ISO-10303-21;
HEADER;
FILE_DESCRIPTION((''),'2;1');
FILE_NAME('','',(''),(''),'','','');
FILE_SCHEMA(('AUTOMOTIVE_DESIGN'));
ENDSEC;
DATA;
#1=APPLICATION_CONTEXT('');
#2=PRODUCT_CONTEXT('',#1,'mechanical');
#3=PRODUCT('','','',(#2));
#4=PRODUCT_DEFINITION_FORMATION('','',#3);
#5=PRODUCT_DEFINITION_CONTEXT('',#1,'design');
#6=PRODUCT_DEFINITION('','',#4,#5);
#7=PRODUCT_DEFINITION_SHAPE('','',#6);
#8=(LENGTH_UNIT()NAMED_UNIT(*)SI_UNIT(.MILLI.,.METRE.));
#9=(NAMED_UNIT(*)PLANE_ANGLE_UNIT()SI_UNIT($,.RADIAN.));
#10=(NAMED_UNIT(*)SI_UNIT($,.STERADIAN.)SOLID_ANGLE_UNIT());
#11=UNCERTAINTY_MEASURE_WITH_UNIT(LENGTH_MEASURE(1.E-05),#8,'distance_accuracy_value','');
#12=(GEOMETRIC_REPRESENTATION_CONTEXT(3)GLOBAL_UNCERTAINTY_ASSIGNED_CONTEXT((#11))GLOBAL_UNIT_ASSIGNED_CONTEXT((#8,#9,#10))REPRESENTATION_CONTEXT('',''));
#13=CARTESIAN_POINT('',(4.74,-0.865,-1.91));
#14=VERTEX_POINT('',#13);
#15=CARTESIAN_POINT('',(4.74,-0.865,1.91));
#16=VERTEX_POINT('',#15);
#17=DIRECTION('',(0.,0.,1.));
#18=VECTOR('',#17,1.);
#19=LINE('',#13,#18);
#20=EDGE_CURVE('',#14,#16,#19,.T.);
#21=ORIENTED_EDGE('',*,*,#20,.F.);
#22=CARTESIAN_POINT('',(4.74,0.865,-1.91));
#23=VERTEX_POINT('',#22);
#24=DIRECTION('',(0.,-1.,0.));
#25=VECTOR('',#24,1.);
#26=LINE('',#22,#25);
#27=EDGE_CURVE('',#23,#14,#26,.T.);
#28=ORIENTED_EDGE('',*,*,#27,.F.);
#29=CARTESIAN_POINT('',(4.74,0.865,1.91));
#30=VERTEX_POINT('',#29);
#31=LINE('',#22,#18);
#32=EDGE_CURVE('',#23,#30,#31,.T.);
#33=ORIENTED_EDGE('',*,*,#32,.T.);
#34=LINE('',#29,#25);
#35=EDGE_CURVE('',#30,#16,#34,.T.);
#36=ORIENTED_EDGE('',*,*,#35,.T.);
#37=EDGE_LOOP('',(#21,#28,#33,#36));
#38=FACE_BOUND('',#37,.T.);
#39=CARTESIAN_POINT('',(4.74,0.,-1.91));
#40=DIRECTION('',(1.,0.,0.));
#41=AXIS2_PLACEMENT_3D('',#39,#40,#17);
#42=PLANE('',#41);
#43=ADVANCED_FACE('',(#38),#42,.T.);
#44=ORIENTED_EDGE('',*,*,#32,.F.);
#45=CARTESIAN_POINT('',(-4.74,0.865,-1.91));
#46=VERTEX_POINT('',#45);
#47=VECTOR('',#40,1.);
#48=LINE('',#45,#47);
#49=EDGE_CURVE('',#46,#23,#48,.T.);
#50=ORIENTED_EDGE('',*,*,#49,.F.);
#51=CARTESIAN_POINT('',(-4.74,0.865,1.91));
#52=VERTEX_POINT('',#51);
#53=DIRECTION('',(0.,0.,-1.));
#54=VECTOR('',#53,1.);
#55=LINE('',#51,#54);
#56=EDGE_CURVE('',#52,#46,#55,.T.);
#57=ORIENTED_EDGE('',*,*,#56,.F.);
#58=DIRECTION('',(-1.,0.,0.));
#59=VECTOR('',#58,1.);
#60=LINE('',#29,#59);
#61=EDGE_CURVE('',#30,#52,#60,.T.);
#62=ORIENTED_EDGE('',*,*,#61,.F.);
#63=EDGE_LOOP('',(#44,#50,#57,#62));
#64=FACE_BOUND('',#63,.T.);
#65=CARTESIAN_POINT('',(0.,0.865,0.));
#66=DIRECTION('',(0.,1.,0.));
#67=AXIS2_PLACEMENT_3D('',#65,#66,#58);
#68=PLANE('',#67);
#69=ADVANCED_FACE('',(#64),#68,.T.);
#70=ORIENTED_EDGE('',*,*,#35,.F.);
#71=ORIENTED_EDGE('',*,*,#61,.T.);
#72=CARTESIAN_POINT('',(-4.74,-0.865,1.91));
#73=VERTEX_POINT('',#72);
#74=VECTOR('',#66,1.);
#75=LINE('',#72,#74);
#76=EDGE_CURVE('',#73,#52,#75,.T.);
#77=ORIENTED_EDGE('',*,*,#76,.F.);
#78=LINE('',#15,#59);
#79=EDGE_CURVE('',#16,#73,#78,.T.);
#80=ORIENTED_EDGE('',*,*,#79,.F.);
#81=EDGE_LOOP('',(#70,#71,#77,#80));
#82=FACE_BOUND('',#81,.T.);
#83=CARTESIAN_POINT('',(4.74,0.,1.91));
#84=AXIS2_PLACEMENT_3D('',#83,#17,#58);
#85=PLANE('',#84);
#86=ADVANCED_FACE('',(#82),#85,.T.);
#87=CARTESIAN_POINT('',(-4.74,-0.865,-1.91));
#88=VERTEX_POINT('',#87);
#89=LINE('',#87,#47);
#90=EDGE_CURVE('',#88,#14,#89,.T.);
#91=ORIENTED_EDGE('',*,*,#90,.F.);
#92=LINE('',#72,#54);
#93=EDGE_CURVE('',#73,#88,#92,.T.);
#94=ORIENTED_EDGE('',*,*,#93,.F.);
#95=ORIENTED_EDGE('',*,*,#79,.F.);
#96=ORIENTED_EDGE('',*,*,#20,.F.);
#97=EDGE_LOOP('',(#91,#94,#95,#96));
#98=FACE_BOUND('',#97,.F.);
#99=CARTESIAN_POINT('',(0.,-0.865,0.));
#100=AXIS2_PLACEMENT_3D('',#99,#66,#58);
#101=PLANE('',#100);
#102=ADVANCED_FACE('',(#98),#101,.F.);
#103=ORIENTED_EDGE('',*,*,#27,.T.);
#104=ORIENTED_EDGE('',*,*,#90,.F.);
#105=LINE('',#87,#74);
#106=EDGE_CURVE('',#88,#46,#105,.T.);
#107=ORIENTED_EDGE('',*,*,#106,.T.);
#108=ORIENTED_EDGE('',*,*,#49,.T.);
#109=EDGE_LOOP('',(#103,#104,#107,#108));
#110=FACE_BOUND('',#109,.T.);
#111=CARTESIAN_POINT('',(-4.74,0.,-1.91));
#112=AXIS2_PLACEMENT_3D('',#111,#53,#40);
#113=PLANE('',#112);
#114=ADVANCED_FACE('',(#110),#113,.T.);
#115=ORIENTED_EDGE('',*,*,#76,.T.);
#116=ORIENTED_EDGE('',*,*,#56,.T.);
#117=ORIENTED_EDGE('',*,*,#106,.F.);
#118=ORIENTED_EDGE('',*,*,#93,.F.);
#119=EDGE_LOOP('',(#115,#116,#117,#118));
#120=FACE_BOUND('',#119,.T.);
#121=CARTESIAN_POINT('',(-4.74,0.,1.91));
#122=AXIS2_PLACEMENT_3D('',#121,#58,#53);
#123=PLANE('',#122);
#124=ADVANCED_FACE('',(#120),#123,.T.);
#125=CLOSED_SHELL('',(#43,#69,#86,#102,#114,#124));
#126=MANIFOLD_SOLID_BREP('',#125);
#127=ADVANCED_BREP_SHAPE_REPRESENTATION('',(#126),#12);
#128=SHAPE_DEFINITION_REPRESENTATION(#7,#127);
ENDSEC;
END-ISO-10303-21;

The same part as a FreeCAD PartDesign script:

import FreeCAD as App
import Part
import Sketcher

doc = App.newDocument("Part")
params = doc.addObject("Spreadsheet::Sheet", "Params")
for row, (alias, value) in enumerate([
    ("sketch1_width", "9.48 mm"),
    ("sketch1_height", "3.82 mm"),
    ("pad1_length", "1.73 mm"),
], start=1):
    params.set(f"A{row}", alias)
    params.set(f"B{row}", "=" + value)
    params.setAlias(f"B{row}", alias)

body = doc.addObject("PartDesign::Body", "Body")

sketch1 = body.newObject("Sketcher::SketchObject", "Sketch")
sketch1.AttachmentSupport = (doc.getObject("XZ_Plane"), [""])
sketch1.MapMode = "FlatFace"
sketch1.addGeometry([
    Part.LineSegment(App.Vector(4.74, -1.91, 0), App.Vector(-4.74, -1.91, 0)),
    Part.LineSegment(App.Vector(-4.74, -1.91, 0), App.Vector(-4.74, 1.91, 0)),
    Part.LineSegment(App.Vector(-4.74, 1.91, 0), App.Vector(4.74, 1.91, 0)),
    Part.LineSegment(App.Vector(4.74, 1.91, 0), App.Vector(4.74, -1.91, 0)),
], False)
sketch1.addConstraint([
    Sketcher.Constraint("Coincident", 0, 2, 1, 1),
    Sketcher.Constraint("Coincident", 1, 2, 2, 1),
    Sketcher.Constraint("Coincident", 2, 2, 3, 1),
    Sketcher.Constraint("Coincident", 3, 2, 0, 1),
    Sketcher.Constraint("Horizontal", 0),
    Sketcher.Constraint("Vertical", 1),
    Sketcher.Constraint("Horizontal", 2),
    Sketcher.Constraint("Vertical", 3),
    Sketcher.Constraint("Symmetric", 0, 2, 2, 2, -1, 1),
    Sketcher.Constraint("DistanceX", 0, 2, 0, 1, 9.48),
    Sketcher.Constraint("DistanceY", 1, 1, 1, 2, 3.82),
])
sketch1.setExpression("Constraints[9]", "Params.sketch1_width")
sketch1.setExpression("Constraints[10]", "Params.sketch1_height")
pad1 = body.newObject("PartDesign::Pad", "Pad")
pad1.Profile = sketch1
pad1.setExpression("Length", "Params.pad1_length")
pad1.Midplane = True

doc.recompute()
